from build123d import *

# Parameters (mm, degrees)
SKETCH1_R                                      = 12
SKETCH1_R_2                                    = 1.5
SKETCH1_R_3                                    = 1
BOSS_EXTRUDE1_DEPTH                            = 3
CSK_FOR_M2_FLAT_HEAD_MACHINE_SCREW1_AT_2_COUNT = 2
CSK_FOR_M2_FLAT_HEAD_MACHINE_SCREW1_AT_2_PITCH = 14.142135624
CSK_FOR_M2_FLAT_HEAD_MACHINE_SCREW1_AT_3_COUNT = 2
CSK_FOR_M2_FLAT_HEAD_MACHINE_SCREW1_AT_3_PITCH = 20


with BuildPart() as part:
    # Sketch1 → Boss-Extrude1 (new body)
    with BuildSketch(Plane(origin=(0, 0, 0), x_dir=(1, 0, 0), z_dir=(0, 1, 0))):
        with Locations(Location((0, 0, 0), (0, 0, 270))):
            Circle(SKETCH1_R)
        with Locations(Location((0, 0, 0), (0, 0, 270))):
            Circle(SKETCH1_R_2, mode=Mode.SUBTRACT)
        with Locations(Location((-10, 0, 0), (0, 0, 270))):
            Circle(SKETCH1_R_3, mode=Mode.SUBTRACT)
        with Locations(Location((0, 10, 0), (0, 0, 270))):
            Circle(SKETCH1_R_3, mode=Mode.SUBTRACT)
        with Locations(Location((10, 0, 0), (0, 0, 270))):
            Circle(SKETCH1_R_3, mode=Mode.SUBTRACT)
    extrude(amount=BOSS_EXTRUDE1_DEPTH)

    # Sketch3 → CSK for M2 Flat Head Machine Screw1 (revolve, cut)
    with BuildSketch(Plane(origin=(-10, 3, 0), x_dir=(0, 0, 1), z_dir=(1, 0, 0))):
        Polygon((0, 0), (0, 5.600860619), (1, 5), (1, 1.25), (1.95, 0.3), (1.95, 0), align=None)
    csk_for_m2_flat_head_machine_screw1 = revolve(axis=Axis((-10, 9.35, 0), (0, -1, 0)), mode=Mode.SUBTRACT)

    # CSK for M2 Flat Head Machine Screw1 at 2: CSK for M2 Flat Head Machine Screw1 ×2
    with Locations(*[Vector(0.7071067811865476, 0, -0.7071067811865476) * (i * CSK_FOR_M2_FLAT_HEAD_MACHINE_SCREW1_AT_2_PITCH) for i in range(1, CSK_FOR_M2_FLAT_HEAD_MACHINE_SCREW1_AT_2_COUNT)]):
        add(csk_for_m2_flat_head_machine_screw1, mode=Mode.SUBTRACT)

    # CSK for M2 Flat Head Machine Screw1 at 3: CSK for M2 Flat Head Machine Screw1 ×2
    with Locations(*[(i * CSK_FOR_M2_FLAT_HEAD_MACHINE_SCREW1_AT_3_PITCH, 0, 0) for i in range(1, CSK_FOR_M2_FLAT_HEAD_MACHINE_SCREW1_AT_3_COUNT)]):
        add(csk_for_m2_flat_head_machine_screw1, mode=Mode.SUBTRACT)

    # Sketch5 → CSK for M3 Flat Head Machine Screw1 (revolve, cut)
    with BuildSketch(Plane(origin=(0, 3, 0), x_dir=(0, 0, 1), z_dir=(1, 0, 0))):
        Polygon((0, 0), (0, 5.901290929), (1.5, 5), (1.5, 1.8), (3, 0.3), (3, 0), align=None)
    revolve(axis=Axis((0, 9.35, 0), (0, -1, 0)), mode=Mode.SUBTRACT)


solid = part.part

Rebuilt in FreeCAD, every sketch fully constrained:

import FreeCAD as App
import Part
import Sketcher
from FreeCAD import Vector
Q = App.Units.Quantity

doc = App.newDocument("Part")
params = doc.addObject("Spreadsheet::Sheet", "Params")
for row, (alias, value) in enumerate([
    ("sketch1_diameter", "24 mm"),
    ("sketch1_diameter2", "2 mm"),
    ("sketch1_diameter3", "3 mm"),
    ("pad1_length", "3 mm"),
    ("sketch2_width", "0.3 mm"),
    ("sketch2_width2", "3.75 mm"),
    ("groove_angle", "360 deg"),
    ("linearpattern_pitch", "14.142136 mm"),
    ("linearpattern2_pitch", "20 mm"),
    ("sketch3_height", "3 mm"),
    ("sketch3_width", "0.3 mm"),
    ("sketch3_width2", "3.2 mm"),
    ("groove2_angle", "360 deg"),
], start=1):
    params.set(f"A{row}", alias)
    params.set(f"B{row}", "=" + value)
    params.setAlias(f"B{row}", alias)

body = doc.addObject("PartDesign::Body", "Body")

sketch1 = body.newObject("Sketcher::SketchObject", "Sketch")
sketch1.AttachmentSupport = (doc.getObject("XZ_Plane"), [""])
sketch1.MapMode = "FlatFace"
sketch1.addGeometry([
    Part.Circle(Vector(0, 0, 0), Vector(0, 0, 1), 12),
    Part.Circle(Vector(0, -10, 0), Vector(0, 0, 1), 1),
    Part.Circle(Vector(-10, 0, 0), Vector(0, 0, 1), 1),
    Part.Circle(Vector(0, 0, 0), Vector(0, 0, 1), 1.5),
    Part.Circle(Vector(10, 0, 0), Vector(0, 0, 1), 1),
], False)
sketch1.addConstraint([
    Sketcher.Constraint("Coincident", 0, 3, -1, 1),
    Sketcher.Constraint("Coincident", 3, 3, -1, 1),
    Sketcher.Constraint("Equal", 1, 2),
    Sketcher.Constraint("Equal", 2, 4),
    Sketcher.Constraint("Symmetric", 2, 3, 4, 3, -1, 1),
    Sketcher.Constraint("PointOnObject", 1, 3, -2),
    Sketcher.Constraint("PointOnObject", 2, 3, -1),
    Sketcher.Constraint("Diameter", 0, Q("24 mm")),
    Sketcher.Constraint("Diameter", 1, Q("2 mm")),
    Sketcher.Constraint("Diameter", 3, Q("3 mm")),
    Sketcher.Constraint("DistanceY", 1, 3, -1, 1, Q("10 mm")),
    Sketcher.Constraint("DistanceX", 2, 3, -1, 1, Q("10 mm")),
])
sketch1.setExpression("Constraints[7]", "Params.sketch1_diameter")
sketch1.setExpression("Constraints[8]", "Params.sketch1_diameter2")
sketch1.setExpression("Constraints[9]", "Params.sketch1_diameter3")
pad1 = body.newObject("PartDesign::Pad", "Pad")
pad1.Profile = sketch1
pad1.setExpression("Length", "Params.pad1_length")
pad1.Reversed = True

sketch2 = body.newObject("Sketcher::SketchObject", "Sketch001")
sketch2.AttachmentSupport = (doc.getObject("YZ_Plane"), [""])
sketch2.MapMode = "FlatFace"
sketch2.AttachmentOffset = App.Placement(Vector(0, 0, -10), App.Rotation())
sketch2.addGeometry([
    Part.LineSegment(Vector(-2.600861, 0, 0), Vector(3, 0, 0)),
    Part.LineSegment(Vector(3, 0, 0), Vector(3, 1.95, 0)),
    Part.LineSegment(Vector(3, 1.95, 0), Vector(2.7, 1.95, 0)),
    Part.LineSegment(Vector(2.7, 1.95, 0), Vector(1.75, 1, 0)),
    Part.LineSegment(Vector(1.75, 1, 0), Vector(-2, 1, 0)),
    Part.LineSegment(Vector(-2, 1, 0), Vector(-2.600861, 0, 0)),
], False)
sketch2.addConstraint([
    Sketcher.Constraint("Coincident", 0, 2, 1, 1),
    Sketcher.Constraint("Coincident", 1, 2, 2, 1),
    Sketcher.Constraint("Coincident", 2, 2, 3, 1),
    Sketcher.Constraint("Coincident", 3, 2, 4, 1),
    Sketcher.Constraint("Coincident", 4, 2, 5, 1),
    Sketcher.Constraint("Coincident", 5, 2, 0, 1),
    Sketcher.Constraint("Horizontal", 0),
    Sketcher.Constraint("Vertical", 1),
    Sketcher.Constraint("Horizontal", 2),
    Sketcher.Constraint("Horizontal", 4),
    Sketcher.Constraint("PointOnObject", 0, 2, -1),
    Sketcher.Constraint("Angle", 3, Q("-135 deg")),
    Sketcher.Constraint("Angle", 5, Q("-121 deg")),
    Sketcher.Constraint("DistanceX", 2, 2, 2, 1, Q("0.3 mm")),
    Sketcher.Constraint("DistanceX", -1, 1, 0, 2, Q("3 mm")),
    Sketcher.Constraint("DistanceY", -1, 1, 3, 2, Q("1 mm")),
    Sketcher.Constraint("DistanceX", 4, 2, -1, 1, Q("2 mm")),
    Sketcher.Constraint("DistanceX", 4, 2, 4, 1, Q("3.75 mm")),
])
sketch2.setExpression("Constraints[13]", "Params.sketch2_width")
sketch2.setExpression("Constraints[17]", "Params.sketch2_width2")
groove = body.newObject("PartDesign::Groove", "Groove")
groove.Profile = sketch2
groove.ReferenceAxis = (sketch2, ["H_Axis"])
groove.setExpression("Angle", "Params.groove_angle")
doc.recompute()

datumline = body.newObject("PartDesign::Line", "DatumLine")
datumline.Placement = App.Placement(Vector(0, 0, 0), App.Rotation(Vector(0, 0, 1), Vector(0.707106781, 0, -0.707106781)))
linearpattern = body.newObject("PartDesign::LinearPattern", "LinearPattern")
linearpattern.Originals = [groove]
linearpattern.Direction = (datumline, [""])
linearpattern.Mode = "offset"
linearpattern.setExpression("Offset", "Params.linearpattern_pitch")
linearpattern.Occurrences = 2
body.Tip = linearpattern
doc.recompute()

linearpattern2 = body.newObject("PartDesign::LinearPattern", "LinearPattern001")
linearpattern2.Originals = [groove]
linearpattern2.Direction = (doc.getObject("X_Axis"), [""])
linearpattern2.Mode = "offset"
linearpattern2.setExpression("Offset", "Params.linearpattern2_pitch")
linearpattern2.Occurrences = 2
body.Tip = linearpattern2

sketch3 = body.newObject("Sketcher::SketchObject", "Sketch002")
sketch3.AttachmentSupport = (doc.getObject("YZ_Plane"), [""])
sketch3.MapMode = "FlatFace"
sketch3.addGeometry([
    Part.LineSegment(Vector(-2.901291, 0, 0), Vector(3, 0, 0)),
    Part.LineSegment(Vector(3, 0, 0), Vector(3, 3, 0)),
    Part.LineSegment(Vector(3, 3, 0), Vector(2.7, 3, 0)),
    Part.LineSegment(Vector(2.7, 3, 0), Vector(1.2, 1.5, 0)),
    Part.LineSegment(Vector(1.2, 1.5, 0), Vector(-2, 1.5, 0)),
    Part.LineSegment(Vector(-2, 1.5, 0), Vector(-2.901291, 0, 0)),
], False)
sketch3.addConstraint([
    Sketcher.Constraint("Coincident", 0, 2, 1, 1),
    Sketcher.Constraint("Coincident", 1, 2, 2, 1),
    Sketcher.Constraint("Coincident", 2, 2, 3, 1),
    Sketcher.Constraint("Coincident", 3, 2, 4, 1),
    Sketcher.Constraint("Coincident", 4, 2, 5, 1),
    Sketcher.Constraint("Coincident", 5, 2, 0, 1),
    Sketcher.Constraint("Horizontal", 0),
    Sketcher.Constraint("Vertical", 1),
    Sketcher.Constraint("Horizontal", 2),
    Sketcher.Constraint("Horizontal", 4),
    Sketcher.Constraint("PointOnObject", 0, 2, -1),
    Sketcher.Constraint("DistanceY", 1, 1, 1, 2, Q("3 mm")),
    Sketcher.Constraint("Angle", 3, Q("-135 deg")),
    Sketcher.Constraint("Angle", 5, Q("-121 deg")),
    Sketcher.Constraint("DistanceX", 2, 2, 2, 1, Q("0.3 mm")),
    Sketcher.Constraint("DistanceX", 4, 2, 4, 1, Q("3.2 mm")),
    Sketcher.Constraint("DistanceX", -1, 1, 0, 2, Q("3 mm")),
    Sketcher.Constraint("DistanceX", 4, 2, -1, 1, Q("2 mm")),
])
sketch3.setExpression("Constraints[11]", "Params.sketch3_height")
sketch3.setExpression("Constraints[14]", "Params.sketch3_width")
sketch3.setExpression("Constraints[15]", "Params.sketch3_width2")
groove2 = body.newObject("PartDesign::Groove", "Groove001")
groove2.Profile = sketch3
groove2.ReferenceAxis = (sketch3, ["H_Axis"])
groove2.setExpression("Angle", "Params.groove2_angle")

doc.recompute()
